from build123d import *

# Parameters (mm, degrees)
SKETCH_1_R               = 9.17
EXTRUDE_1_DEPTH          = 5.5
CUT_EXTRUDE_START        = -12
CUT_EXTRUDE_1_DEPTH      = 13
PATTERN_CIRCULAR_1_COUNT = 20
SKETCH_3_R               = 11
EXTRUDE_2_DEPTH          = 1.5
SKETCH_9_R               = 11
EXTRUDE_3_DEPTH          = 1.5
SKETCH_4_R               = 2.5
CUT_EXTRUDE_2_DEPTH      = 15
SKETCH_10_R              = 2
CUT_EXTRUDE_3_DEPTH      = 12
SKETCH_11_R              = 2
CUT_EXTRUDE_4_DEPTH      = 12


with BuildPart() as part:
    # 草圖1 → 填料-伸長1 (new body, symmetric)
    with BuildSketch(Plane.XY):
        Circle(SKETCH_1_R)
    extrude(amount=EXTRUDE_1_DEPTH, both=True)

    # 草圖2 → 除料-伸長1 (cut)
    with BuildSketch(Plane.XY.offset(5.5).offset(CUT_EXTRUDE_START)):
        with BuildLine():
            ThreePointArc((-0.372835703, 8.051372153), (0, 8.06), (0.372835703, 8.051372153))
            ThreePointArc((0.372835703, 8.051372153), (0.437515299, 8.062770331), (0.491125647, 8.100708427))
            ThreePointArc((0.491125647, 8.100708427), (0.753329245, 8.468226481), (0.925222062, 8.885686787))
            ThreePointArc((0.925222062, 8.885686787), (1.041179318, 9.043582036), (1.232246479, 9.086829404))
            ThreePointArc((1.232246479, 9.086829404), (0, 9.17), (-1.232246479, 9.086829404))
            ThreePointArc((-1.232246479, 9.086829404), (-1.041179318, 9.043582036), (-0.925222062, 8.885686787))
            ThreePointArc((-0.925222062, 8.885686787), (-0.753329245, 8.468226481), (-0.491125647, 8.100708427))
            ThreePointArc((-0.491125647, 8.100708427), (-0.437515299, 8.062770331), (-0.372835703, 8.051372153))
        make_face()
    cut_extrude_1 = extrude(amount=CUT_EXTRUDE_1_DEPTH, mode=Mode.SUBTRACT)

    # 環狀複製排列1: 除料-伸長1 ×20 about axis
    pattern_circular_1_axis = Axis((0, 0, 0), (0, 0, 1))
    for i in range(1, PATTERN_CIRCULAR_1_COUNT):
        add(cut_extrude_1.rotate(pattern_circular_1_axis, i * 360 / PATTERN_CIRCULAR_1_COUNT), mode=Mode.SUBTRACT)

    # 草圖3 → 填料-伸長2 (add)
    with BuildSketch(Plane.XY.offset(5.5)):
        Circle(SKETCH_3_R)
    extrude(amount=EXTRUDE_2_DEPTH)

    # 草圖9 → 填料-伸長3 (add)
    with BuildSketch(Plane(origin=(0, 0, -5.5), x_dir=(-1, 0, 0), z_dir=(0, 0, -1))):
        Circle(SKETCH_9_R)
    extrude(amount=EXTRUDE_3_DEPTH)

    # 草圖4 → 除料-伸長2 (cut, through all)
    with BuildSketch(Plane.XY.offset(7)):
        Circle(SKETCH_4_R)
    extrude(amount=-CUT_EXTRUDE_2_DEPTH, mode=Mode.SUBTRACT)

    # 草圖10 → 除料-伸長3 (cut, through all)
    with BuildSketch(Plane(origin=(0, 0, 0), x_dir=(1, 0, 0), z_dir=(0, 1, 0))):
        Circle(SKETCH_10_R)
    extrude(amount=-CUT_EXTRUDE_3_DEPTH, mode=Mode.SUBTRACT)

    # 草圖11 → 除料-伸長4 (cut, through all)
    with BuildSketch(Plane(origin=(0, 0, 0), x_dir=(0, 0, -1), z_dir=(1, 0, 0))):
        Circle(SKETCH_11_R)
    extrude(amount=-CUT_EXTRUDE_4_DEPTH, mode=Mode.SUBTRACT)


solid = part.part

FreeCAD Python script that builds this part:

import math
import FreeCAD as App
import Part
import Sketcher

V = App.Vector
Q = App.Units.Quantity

doc = App.newDocument("Part")
body = doc.addObject("PartDesign::Body", "Body")

# Sketch on XY plane
sketch1 = body.newObject("Sketcher::SketchObject", "Sketch")
sketch1.AttachmentSupport = (doc.getObject("XY_Plane"), [""])
sketch1.MapMode = "FlatFace"
sketch1.addGeometry(Part.Circle(V(0, 0, 0), V(0, 0, 1), 9), False)
sketch1.addConstraint([
    Sketcher.Constraint("Coincident", 0, 3, -1, 1),
    Sketcher.Constraint("Diameter", 0, Q("18.34 mm")),
])
pad1 = body.newObject("PartDesign::Pad", "Pad")
pad1.Profile = sketch1
pad1.Length = 11
pad1.Midplane = True

# Sketch on XY plane
sketch2 = body.newObject("Sketcher::SketchObject", "Sketch001")
sketch2.AttachmentSupport = (doc.getObject("XY_Plane"), [""])
sketch2.MapMode = "FlatFace"
sketch2.AttachmentOffset = App.Placement(V(0, 0, -6.5), App.Rotation())
sketch2.addGeometry([
    Part.ArcOfCircle(Part.Circle(V(0, 0, 0), V(0, 0, 1), 8.06), math.radians(87.35), math.radians(92.65)),  # 0
    Part.ArcOfCircle(Part.Circle(V(0.38, 8.2, 0), V(0, 0, 1), 0.15), math.radians(-93), math.radians(-42)),  # 1
    Part.ArcOfCircle(Part.Circle(V(-0.98, 9.42, 0), V(0, 0, 1), 1.98), math.radians(-42), math.radians(-16)),  # 2
    Part.ArcOfCircle(Part.Circle(V(1.19, 8.81, 0), V(0, 0, 1), 0.28), math.radians(82), math.radians(164)),  # 3
    Part.ArcOfCircle(Part.Circle(V(0, 0, 0), V(0, 0, 1), 9.17), math.radians(82.28), math.radians(97.72)),  # 4
    Part.ArcOfCircle(Part.Circle(V(-1.19, 8.81, 0), V(0, 0, 1), 0.28), math.radians(16), math.radians(98)),  # 5
    Part.ArcOfCircle(Part.Circle(V(0.98, 9.42, 0), V(0, 0, 1), 1.98), math.radians(-164), math.radians(-138)),  # 6
    Part.ArcOfCircle(Part.Circle(V(-0.38, 8.2, 0), V(0, 0, 1), 0.15), math.radians(-138), math.radians(-87)),  # 7
], False)
sketch2.addConstraint([
    Sketcher.Constraint("Tangent", 0, 1, 1, 1),
    Sketcher.Constraint("Tangent", 1, 2, 2, 1),
    Sketcher.Constraint("Tangent", 2, 2, 3, 2),
    Sketcher.Constraint("Tangent", 3, 1, 4, 1),
    Sketcher.Constraint("Tangent", 4, 2, 5, 2),
    Sketcher.Constraint("Tangent", 5, 1, 6, 1),
    Sketcher.Constraint("Tangent", 6, 2, 7, 1),
    Sketcher.Constraint("Tangent", 7, 2, 0, 2),
    Sketcher.Constraint("Coincident", 0, 3, -1, 1),
    Sketcher.Constraint("Coincident", 4, 3, -1, 1),
    Sketcher.Constraint("Equal", 3, 5),
    Sketcher.Constraint("Equal", 2, 6),
    Sketcher.Constraint("Equal", 1, 7),
    Sketcher.Constraint("Symmetric", 2, 3, 6, 3, -2),
    Sketcher.Constraint("Radius", 0, Q("8.06 mm")),
    Sketcher.Constraint("Radius", 1, Q("0.15 mm")),
    Sketcher.Constraint("Radius", 3, Q("0.28 mm")),
    Sketcher.Constraint("Radius", 4, Q("9.17 mm")),
    Sketcher.Constraint("Radius", 2, Q("1.975 mm")),
    Sketcher.Constraint("DistanceX", 2, 3, 6, 3, Q("1.95 mm")),
    Sketcher.Constraint("DistanceY", -1, 1, 2, 3, Q("9.424 mm")),
])
pocket1 = body.newObject("PartDesign::Pocket", "Pocket")
pocket1.Profile = sketch2
pocket1.Length = 13
pocket1.Reversed = True
doc.recompute()

polarpattern = body.newObject("PartDesign::PolarPattern", "PolarPattern")
polarpattern.Originals = [pocket1]
polarpattern.Axis = (doc.getObject("Z_Axis"), [""])
polarpattern.Angle = 360
polarpattern.Occurrences = 20
body.Tip = polarpattern

# Sketch on XY plane
sketch3 = body.newObject("Sketcher::SketchObject", "Sketch002")
sketch3.AttachmentSupport = (doc.getObject("XY_Plane"), [""])
sketch3.MapMode = "FlatFace"
sketch3.AttachmentOffset = App.Placement(V(0, 0, 5.5), App.Rotation())
sketch3.addGeometry(Part.Circle(V(0, 0, 0), V(0, 0, 1), 11), False)
sketch3.addConstraint([
    Sketcher.Constraint("Coincident", 0, 3, -1, 1),
    Sketcher.Constraint("Diameter", 0, Q("22 mm")),
])
pad2 = body.newObject("PartDesign::Pad", "Pad001")
pad2.Profile = sketch3
pad2.Length = 1.5

# Sketch on XY plane
sketch4 = body.newObject("Sketcher::SketchObject", "Sketch003")
sketch4.AttachmentSupport = (doc.getObject("XY_Plane"), [""])
sketch4.MapMode = "FlatFace"
sketch4.AttachmentOffset = App.Placement(V(0, 0, -5.5), App.Rotation())
sketch4.addGeometry(Part.Circle(V(0, 0, 0), V(0, 0, 1), 11), False)
sketch4.addConstraint([
    Sketcher.Constraint("Coincident", 0, 3, -1, 1),
    Sketcher.Constraint("Diameter", 0, Q("22 mm")),
])
pad3 = body.newObject("PartDesign::Pad", "Pad002")
pad3.Profile = sketch4
pad3.Length = 1.5
pad3.Reversed = True

# Sketch on XY plane
sketch5 = body.newObject("Sketcher::SketchObject", "Sketch004")
sketch5.AttachmentSupport = (doc.getObject("XY_Plane"), [""])
sketch5.MapMode = "FlatFace"
sketch5.AttachmentOffset = App.Placement(V(0, 0, 7), App.Rotation())
sketch5.addGeometry(Part.Circle(V(0, 0, 0), V(0, 0, 1), 2.5), False)
sketch5.addConstraint([
    Sketcher.Constraint("Coincident", 0, 3, -1, 1),
    Sketcher.Constraint("Diameter", 0, Q("5 mm")),
])
pocket2 = body.newObject("PartDesign::Pocket", "Pocket001")
pocket2.Profile = sketch5
pocket2.Type = "ThroughAll"

# Sketch on XZ plane
sketch6 = body.newObject("Sketcher::SketchObject", "Sketch005")
sketch6.AttachmentSupport = (doc.getObject("XZ_Plane"), [""])
sketch6.MapMode = "FlatFace"
sketch6.addGeometry(Part.Circle(V(0, 0, 0), V(0, 0, 1), 2), False)
sketch6.addConstraint([
    Sketcher.Constraint("Coincident", 0, 3, -1, 1),
    Sketcher.Constraint("Diameter", 0, Q("4 mm")),
])
pocket3 = body.newObject("PartDesign::Pocket", "Pocket002")
pocket3.Profile = sketch6
pocket3.Type = "ThroughAll"
pocket3.Reversed = True

# Sketch on YZ plane
sketch7 = body.newObject("Sketcher::SketchObject", "Sketch006")
sketch7.AttachmentSupport = (doc.getObject("YZ_Plane"), [""])
sketch7.MapMode = "FlatFace"
sketch7.addGeometry(Part.Circle(V(0, 0, 0), V(0, 0, 1), 2), False)
sketch7.addConstraint([
    Sketcher.Constraint("Coincident", 0, 3, -1, 1),
    Sketcher.Constraint("Diameter", 0, Q("4 mm")),
])
pocket4 = body.newObject("PartDesign::Pocket", "Pocket003")
pocket4.Profile = sketch7
pocket4.Type = "ThroughAll"

doc.recompute()
